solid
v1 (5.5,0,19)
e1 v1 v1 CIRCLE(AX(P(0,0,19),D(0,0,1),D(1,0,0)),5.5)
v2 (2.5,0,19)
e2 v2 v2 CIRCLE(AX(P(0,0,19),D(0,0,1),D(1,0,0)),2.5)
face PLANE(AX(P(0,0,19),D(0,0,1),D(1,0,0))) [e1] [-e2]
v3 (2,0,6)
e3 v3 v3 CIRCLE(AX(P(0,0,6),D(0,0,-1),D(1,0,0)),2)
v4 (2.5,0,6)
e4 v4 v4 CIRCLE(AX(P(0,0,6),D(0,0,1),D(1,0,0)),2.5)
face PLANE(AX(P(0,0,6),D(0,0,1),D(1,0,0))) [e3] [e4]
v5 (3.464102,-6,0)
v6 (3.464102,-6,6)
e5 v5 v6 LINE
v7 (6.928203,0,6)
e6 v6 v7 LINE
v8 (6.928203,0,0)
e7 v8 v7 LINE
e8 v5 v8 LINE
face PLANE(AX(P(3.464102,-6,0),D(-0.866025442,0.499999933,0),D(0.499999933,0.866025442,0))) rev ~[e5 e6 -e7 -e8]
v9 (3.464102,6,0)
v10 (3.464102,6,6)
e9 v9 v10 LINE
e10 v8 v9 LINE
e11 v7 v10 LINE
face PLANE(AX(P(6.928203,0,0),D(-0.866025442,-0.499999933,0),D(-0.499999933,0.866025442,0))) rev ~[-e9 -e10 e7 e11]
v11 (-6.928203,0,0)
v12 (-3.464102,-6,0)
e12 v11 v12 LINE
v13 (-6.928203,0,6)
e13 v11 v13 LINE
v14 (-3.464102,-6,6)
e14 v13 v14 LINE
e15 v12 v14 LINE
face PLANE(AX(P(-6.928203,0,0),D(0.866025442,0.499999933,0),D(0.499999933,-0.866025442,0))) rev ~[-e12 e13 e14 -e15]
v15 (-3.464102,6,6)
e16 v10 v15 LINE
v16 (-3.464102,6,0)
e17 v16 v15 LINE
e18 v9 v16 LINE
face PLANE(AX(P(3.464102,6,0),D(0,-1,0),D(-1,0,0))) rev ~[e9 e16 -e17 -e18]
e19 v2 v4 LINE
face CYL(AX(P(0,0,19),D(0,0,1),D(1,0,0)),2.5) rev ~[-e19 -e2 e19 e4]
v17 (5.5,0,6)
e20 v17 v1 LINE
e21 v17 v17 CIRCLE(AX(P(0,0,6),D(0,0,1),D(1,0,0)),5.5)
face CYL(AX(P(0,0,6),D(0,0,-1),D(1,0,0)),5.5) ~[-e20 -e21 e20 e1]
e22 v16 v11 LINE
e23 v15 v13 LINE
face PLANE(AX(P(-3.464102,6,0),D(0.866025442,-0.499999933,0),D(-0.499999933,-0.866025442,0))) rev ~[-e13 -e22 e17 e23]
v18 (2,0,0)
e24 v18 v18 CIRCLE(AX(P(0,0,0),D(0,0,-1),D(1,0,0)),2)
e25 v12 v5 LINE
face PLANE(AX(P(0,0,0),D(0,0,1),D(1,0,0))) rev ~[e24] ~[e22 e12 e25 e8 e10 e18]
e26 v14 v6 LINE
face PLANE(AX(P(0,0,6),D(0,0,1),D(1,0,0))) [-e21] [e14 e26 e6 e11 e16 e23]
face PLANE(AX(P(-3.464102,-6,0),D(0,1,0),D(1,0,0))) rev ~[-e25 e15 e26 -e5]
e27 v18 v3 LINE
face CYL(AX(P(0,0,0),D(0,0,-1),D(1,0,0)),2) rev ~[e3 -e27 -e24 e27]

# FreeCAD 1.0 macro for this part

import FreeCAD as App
import Part
import Sketcher
from FreeCAD import Vector
Q = App.Units.Quantity

doc = App.newDocument("Part")
body = doc.addObject("PartDesign::Body", "Body")

# Sketch on XY plane
sketch1 = body.newObject("Sketcher::SketchObject", "Sketch")
sketch1.AttachmentSupport = (doc.getObject("XY_Plane"), [""])
sketch1.MapMode = "FlatFace"
sketch1.addGeometry(Part.LineSegment(Vector(7, 0, 0), Vector(3, 6, 0)), False)
sketch1.addGeometry(Part.LineSegment(Vector(3, 6, 0), Vector(-3, 6, 0)), False)
sketch1.addGeometry(Part.LineSegment(Vector(-3, 6, 0), Vector(-7, 0, 0)), False)
sketch1.addGeometry(Part.LineSegment(Vector(-7, 0, 0), Vector(-3, -6, 0)), False)
sketch1.addGeometry(Part.LineSegment(Vector(-3, -6, 0), Vector(3, -6, 0)), False)
sketch1.addGeometry(Part.LineSegment(Vector(3, -6, 0), Vector(7, 0, 0)), False)
sketch1.addConstraint(Sketcher.Constraint("Coincident", 0, 2, 1, 1))
sketch1.addConstraint(Sketcher.Constraint("Coincident", 1, 2, 2, 1))
sketch1.addConstraint(Sketcher.Constraint("Coincident", 2, 2, 3, 1))
sketch1.addConstraint(Sketcher.Constraint("Coincident", 3, 2, 4, 1))
sketch1.addConstraint(Sketcher.Constraint("Coincident", 4, 2, 5, 1))
sketch1.addConstraint(Sketcher.Constraint("Coincident", 5, 2, 0, 1))
sketch1.addConstraint(Sketcher.Constraint("Horizontal", 1))
sketch1.addConstraint(Sketcher.Constraint("Horizontal", 4))
sketch1.addConstraint(Sketcher.Constraint("Symmetric", 0, 2, 3, 2, -1, 1))
sketch1.addConstraint(Sketcher.Constraint("Symmetric", 2, 2, 5, 2, -1, 1))
sketch1.addConstraint(Sketcher.Constraint("PointOnObject", 2, 2, -1))
sketch1.addConstraint(Sketcher.Constraint("Parallel", 2, 5))
sketch1.addConstraint(Sketcher.Constraint("Vertical", 1, 2, 3, 2))
sketch1.addConstraint(Sketcher.Constraint("Angle", 0, Q("119.999996 deg")))
sketch1.addConstraint(Sketcher.Constraint("DistanceY", -1, 1, 0, 2, Q("6 mm")))
sketch1.addConstraint(Sketcher.Constraint("DistanceX", -1, 1, 0, 2, Q("3.464102 mm")))
pad1 = body.newObject("PartDesign::Pad", "Pad")
pad1.Profile = sketch1
pad1.Length = 6

# Sketch on XY plane
sketch2 = body.newObject("Sketcher::SketchObject", "Sketch001")
sketch2.AttachmentSupport = (doc.getObject("XY_Plane"), [""])
sketch2.MapMode = "FlatFace"
sketch2.AttachmentOffset = App.Placement(Vector(0, 0, 6), App.Rotation())
sketch2.addGeometry(Part.Circle(Vector(0, 0, 0), Vector(0, 0, 1), 6), False)
sketch2.addConstraint(Sketcher.Constraint("Coincident", 0, 3, -1, 1))
sketch2.addConstraint(Sketcher.Constraint("Diameter", 0, Q("11 mm")))
pad2 = body.newObject("PartDesign::Pad", "Pad001")
pad2.Profile = sketch2
pad2.Length = 13

# Sketch on XY plane
sketch3 = body.newObject("Sketcher::SketchObject", "Sketch002")
sketch3.AttachmentSupport = (doc.getObject("XY_Plane"), [""])
sketch3.MapMode = "FlatFace"
sketch3.addGeometry(Part.Circle(Vector(0, 0, 0), Vector(0, 0, 1), 2), False)
sketch3.addConstraint(Sketcher.Constraint("Coincident", 0, 3, -1, 1))
sketch3.addConstraint(Sketcher.Constraint("Diameter", 0, Q("4 mm")))
pocket1 = body.newObject("PartDesign::Pocket", "Pocket")
pocket1.Profile = sketch3
pocket1.Length = 6
pocket1.Reversed = True

# Sketch on XY plane
sketch4 = body.newObject("Sketcher::SketchObject", "Sketch003")
sketch4.AttachmentSupport = (doc.getObject("XY_Plane"), [""])
sketch4.MapMode = "FlatFace"
sketch4.AttachmentOffset = App.Placement(Vector(0, 0, 19), App.Rotation())
sketch4.addGeometry(Part.Circle(Vector(0, 0, 0), Vector(0, 0, 1), 2.5), False)
sketch4.addConstraint(Sketcher.Constraint("Coincident", 0, 3, -1, 1))
sketch4.addConstraint(Sketcher.Constraint("Diameter", 0, Q("5 mm")))
pocket2 = body.newObject("PartDesign::Pocket", "Pocket001")
pocket2.Profile = sketch4
pocket2.Length = 13

doc.recompute()
